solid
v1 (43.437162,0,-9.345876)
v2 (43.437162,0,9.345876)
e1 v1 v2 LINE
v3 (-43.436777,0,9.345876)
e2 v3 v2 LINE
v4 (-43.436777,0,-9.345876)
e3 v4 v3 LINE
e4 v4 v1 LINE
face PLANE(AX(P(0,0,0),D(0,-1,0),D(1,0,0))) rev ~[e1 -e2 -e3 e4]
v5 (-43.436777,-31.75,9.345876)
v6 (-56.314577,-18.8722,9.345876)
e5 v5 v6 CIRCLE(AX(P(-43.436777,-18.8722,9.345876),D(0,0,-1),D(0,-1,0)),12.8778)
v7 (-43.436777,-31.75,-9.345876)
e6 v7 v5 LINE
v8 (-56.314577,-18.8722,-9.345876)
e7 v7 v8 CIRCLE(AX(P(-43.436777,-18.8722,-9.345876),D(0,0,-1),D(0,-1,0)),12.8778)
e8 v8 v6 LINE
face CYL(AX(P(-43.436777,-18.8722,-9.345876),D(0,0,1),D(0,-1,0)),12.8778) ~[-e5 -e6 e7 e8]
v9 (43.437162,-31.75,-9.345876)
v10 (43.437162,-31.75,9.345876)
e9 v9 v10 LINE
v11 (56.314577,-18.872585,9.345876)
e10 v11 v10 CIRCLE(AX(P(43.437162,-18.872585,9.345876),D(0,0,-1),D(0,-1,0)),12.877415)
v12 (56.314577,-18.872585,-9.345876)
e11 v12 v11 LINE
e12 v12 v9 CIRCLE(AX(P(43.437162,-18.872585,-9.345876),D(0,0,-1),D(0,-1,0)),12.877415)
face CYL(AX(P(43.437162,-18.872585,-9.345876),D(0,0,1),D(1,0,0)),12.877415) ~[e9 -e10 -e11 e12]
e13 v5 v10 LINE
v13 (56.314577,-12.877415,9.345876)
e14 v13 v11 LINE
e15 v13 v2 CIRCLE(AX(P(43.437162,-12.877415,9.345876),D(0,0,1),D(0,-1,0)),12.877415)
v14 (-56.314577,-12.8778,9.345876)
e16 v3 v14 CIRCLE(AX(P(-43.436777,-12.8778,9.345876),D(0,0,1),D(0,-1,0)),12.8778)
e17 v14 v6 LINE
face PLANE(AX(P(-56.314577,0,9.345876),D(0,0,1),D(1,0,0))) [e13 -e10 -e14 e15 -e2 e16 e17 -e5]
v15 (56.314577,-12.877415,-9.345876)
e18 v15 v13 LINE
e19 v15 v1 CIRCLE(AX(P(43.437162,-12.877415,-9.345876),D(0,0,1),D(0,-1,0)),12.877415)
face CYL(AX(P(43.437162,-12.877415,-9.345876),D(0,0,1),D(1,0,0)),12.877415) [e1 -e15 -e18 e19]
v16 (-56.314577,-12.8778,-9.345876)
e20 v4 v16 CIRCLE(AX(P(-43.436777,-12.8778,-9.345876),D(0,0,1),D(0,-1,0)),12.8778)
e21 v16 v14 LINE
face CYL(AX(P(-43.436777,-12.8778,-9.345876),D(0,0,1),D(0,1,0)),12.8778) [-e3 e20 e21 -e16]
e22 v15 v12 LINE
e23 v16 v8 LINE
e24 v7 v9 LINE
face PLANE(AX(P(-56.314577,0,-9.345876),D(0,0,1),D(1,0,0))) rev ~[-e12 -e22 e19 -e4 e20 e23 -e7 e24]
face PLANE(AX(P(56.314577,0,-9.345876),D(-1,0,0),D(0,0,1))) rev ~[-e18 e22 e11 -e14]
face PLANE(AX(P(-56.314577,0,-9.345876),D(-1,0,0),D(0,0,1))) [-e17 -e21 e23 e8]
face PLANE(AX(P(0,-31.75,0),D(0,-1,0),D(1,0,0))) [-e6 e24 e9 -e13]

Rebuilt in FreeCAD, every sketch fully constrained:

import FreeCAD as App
import Part
import Sketcher


def edges_at(feature, points):
    """Names of the edges that pass closest to the given points."""
    edges = feature.Shape.Edges
    near = lambda p: min(range(len(edges)), key=lambda i: edges[i].distToShape(Part.Vertex(*p))[0])
    return sorted({f"Edge{near(p) + 1}" for p in points})

doc = App.newDocument("Part")
params = doc.addObject("Spreadsheet::Sheet", "Params")
for row, (alias, value) in enumerate([
    ("pad1_length", "1.25 in"),
    ("fillet_radius", "12.877415 mm"),
    ("fillet2_radius", "0.507 in"),
], start=1):
    params.set(f"A{row}", alias)
    params.set(f"B{row}", "=" + value)
    params.setAlias(f"B{row}", alias)

body = doc.addObject("PartDesign::Body", "Body")

sketch1 = doc.addObject("Sketcher::SketchObject", "Sketch")
body.addObject(sketch1)
sketch1.AttachmentSupport = (doc.XZ_Plane, [""])
sketch1.MapMode = "FlatFace"
sketch1.addGeometry([
    Part.LineSegment(App.Vector(-56.314577, 9.345876, 0), App.Vector(-56.314577, -9.345876, 0)),
    Part.LineSegment(App.Vector(-56.314577, -9.345876, 0), App.Vector(56.314577, -9.345876, 0)),
    Part.LineSegment(App.Vector(56.314577, -9.345876, 0), App.Vector(56.314577, 9.345876, 0)),
    Part.LineSegment(App.Vector(56.314577, 9.345876, 0), App.Vector(-56.314577, 9.345876, 0)),
], False)
sketch1.addConstraint([
    Sketcher.Constraint("Coincident", 0, 2, 1, 1),
    Sketcher.Constraint("Coincident", 1, 2, 2, 1),
    Sketcher.Constraint("Coincident", 2, 2, 3, 1),
    Sketcher.Constraint("Coincident", 3, 2, 0, 1),
    Sketcher.Constraint("Vertical", 0),
    Sketcher.Constraint("Horizontal", 1),
    Sketcher.Constraint("Vertical", 2),
    Sketcher.Constraint("Horizontal", 3),
    Sketcher.Constraint("Symmetric", 0, 2, 2, 2, -1, 1),
    Sketcher.Constraint("DistanceX", 1, 1, 1, 2, 112.629154),
    Sketcher.Constraint("DistanceY", 0, 2, 0, 1, 18.691752),
])
pad1 = doc.addObject("PartDesign::Pad", "Pad")
body.addObject(pad1)
pad1.Profile = sketch1
pad1.setExpression("Length", "Params.pad1_length")
doc.recompute()

fillet = doc.addObject("PartDesign::Fillet", "Fillet")
body.addObject(fillet)
fillet.Base = (pad1, edges_at(pad1, [(56.315, 0, 0), (56.315, -31.75, 0)]))
fillet.setExpression("Radius", "Params.fillet_radius")
doc.recompute()

fillet2 = doc.addObject("PartDesign::Fillet", "Fillet001")
body.addObject(fillet2)
fillet2.Base = (fillet, edges_at(fillet, [(-56.315, 0, 0), (-56.315, -31.75, 0)]))
fillet2.setExpression("Radius", "Params.fillet2_radius")

doc.recompute()
